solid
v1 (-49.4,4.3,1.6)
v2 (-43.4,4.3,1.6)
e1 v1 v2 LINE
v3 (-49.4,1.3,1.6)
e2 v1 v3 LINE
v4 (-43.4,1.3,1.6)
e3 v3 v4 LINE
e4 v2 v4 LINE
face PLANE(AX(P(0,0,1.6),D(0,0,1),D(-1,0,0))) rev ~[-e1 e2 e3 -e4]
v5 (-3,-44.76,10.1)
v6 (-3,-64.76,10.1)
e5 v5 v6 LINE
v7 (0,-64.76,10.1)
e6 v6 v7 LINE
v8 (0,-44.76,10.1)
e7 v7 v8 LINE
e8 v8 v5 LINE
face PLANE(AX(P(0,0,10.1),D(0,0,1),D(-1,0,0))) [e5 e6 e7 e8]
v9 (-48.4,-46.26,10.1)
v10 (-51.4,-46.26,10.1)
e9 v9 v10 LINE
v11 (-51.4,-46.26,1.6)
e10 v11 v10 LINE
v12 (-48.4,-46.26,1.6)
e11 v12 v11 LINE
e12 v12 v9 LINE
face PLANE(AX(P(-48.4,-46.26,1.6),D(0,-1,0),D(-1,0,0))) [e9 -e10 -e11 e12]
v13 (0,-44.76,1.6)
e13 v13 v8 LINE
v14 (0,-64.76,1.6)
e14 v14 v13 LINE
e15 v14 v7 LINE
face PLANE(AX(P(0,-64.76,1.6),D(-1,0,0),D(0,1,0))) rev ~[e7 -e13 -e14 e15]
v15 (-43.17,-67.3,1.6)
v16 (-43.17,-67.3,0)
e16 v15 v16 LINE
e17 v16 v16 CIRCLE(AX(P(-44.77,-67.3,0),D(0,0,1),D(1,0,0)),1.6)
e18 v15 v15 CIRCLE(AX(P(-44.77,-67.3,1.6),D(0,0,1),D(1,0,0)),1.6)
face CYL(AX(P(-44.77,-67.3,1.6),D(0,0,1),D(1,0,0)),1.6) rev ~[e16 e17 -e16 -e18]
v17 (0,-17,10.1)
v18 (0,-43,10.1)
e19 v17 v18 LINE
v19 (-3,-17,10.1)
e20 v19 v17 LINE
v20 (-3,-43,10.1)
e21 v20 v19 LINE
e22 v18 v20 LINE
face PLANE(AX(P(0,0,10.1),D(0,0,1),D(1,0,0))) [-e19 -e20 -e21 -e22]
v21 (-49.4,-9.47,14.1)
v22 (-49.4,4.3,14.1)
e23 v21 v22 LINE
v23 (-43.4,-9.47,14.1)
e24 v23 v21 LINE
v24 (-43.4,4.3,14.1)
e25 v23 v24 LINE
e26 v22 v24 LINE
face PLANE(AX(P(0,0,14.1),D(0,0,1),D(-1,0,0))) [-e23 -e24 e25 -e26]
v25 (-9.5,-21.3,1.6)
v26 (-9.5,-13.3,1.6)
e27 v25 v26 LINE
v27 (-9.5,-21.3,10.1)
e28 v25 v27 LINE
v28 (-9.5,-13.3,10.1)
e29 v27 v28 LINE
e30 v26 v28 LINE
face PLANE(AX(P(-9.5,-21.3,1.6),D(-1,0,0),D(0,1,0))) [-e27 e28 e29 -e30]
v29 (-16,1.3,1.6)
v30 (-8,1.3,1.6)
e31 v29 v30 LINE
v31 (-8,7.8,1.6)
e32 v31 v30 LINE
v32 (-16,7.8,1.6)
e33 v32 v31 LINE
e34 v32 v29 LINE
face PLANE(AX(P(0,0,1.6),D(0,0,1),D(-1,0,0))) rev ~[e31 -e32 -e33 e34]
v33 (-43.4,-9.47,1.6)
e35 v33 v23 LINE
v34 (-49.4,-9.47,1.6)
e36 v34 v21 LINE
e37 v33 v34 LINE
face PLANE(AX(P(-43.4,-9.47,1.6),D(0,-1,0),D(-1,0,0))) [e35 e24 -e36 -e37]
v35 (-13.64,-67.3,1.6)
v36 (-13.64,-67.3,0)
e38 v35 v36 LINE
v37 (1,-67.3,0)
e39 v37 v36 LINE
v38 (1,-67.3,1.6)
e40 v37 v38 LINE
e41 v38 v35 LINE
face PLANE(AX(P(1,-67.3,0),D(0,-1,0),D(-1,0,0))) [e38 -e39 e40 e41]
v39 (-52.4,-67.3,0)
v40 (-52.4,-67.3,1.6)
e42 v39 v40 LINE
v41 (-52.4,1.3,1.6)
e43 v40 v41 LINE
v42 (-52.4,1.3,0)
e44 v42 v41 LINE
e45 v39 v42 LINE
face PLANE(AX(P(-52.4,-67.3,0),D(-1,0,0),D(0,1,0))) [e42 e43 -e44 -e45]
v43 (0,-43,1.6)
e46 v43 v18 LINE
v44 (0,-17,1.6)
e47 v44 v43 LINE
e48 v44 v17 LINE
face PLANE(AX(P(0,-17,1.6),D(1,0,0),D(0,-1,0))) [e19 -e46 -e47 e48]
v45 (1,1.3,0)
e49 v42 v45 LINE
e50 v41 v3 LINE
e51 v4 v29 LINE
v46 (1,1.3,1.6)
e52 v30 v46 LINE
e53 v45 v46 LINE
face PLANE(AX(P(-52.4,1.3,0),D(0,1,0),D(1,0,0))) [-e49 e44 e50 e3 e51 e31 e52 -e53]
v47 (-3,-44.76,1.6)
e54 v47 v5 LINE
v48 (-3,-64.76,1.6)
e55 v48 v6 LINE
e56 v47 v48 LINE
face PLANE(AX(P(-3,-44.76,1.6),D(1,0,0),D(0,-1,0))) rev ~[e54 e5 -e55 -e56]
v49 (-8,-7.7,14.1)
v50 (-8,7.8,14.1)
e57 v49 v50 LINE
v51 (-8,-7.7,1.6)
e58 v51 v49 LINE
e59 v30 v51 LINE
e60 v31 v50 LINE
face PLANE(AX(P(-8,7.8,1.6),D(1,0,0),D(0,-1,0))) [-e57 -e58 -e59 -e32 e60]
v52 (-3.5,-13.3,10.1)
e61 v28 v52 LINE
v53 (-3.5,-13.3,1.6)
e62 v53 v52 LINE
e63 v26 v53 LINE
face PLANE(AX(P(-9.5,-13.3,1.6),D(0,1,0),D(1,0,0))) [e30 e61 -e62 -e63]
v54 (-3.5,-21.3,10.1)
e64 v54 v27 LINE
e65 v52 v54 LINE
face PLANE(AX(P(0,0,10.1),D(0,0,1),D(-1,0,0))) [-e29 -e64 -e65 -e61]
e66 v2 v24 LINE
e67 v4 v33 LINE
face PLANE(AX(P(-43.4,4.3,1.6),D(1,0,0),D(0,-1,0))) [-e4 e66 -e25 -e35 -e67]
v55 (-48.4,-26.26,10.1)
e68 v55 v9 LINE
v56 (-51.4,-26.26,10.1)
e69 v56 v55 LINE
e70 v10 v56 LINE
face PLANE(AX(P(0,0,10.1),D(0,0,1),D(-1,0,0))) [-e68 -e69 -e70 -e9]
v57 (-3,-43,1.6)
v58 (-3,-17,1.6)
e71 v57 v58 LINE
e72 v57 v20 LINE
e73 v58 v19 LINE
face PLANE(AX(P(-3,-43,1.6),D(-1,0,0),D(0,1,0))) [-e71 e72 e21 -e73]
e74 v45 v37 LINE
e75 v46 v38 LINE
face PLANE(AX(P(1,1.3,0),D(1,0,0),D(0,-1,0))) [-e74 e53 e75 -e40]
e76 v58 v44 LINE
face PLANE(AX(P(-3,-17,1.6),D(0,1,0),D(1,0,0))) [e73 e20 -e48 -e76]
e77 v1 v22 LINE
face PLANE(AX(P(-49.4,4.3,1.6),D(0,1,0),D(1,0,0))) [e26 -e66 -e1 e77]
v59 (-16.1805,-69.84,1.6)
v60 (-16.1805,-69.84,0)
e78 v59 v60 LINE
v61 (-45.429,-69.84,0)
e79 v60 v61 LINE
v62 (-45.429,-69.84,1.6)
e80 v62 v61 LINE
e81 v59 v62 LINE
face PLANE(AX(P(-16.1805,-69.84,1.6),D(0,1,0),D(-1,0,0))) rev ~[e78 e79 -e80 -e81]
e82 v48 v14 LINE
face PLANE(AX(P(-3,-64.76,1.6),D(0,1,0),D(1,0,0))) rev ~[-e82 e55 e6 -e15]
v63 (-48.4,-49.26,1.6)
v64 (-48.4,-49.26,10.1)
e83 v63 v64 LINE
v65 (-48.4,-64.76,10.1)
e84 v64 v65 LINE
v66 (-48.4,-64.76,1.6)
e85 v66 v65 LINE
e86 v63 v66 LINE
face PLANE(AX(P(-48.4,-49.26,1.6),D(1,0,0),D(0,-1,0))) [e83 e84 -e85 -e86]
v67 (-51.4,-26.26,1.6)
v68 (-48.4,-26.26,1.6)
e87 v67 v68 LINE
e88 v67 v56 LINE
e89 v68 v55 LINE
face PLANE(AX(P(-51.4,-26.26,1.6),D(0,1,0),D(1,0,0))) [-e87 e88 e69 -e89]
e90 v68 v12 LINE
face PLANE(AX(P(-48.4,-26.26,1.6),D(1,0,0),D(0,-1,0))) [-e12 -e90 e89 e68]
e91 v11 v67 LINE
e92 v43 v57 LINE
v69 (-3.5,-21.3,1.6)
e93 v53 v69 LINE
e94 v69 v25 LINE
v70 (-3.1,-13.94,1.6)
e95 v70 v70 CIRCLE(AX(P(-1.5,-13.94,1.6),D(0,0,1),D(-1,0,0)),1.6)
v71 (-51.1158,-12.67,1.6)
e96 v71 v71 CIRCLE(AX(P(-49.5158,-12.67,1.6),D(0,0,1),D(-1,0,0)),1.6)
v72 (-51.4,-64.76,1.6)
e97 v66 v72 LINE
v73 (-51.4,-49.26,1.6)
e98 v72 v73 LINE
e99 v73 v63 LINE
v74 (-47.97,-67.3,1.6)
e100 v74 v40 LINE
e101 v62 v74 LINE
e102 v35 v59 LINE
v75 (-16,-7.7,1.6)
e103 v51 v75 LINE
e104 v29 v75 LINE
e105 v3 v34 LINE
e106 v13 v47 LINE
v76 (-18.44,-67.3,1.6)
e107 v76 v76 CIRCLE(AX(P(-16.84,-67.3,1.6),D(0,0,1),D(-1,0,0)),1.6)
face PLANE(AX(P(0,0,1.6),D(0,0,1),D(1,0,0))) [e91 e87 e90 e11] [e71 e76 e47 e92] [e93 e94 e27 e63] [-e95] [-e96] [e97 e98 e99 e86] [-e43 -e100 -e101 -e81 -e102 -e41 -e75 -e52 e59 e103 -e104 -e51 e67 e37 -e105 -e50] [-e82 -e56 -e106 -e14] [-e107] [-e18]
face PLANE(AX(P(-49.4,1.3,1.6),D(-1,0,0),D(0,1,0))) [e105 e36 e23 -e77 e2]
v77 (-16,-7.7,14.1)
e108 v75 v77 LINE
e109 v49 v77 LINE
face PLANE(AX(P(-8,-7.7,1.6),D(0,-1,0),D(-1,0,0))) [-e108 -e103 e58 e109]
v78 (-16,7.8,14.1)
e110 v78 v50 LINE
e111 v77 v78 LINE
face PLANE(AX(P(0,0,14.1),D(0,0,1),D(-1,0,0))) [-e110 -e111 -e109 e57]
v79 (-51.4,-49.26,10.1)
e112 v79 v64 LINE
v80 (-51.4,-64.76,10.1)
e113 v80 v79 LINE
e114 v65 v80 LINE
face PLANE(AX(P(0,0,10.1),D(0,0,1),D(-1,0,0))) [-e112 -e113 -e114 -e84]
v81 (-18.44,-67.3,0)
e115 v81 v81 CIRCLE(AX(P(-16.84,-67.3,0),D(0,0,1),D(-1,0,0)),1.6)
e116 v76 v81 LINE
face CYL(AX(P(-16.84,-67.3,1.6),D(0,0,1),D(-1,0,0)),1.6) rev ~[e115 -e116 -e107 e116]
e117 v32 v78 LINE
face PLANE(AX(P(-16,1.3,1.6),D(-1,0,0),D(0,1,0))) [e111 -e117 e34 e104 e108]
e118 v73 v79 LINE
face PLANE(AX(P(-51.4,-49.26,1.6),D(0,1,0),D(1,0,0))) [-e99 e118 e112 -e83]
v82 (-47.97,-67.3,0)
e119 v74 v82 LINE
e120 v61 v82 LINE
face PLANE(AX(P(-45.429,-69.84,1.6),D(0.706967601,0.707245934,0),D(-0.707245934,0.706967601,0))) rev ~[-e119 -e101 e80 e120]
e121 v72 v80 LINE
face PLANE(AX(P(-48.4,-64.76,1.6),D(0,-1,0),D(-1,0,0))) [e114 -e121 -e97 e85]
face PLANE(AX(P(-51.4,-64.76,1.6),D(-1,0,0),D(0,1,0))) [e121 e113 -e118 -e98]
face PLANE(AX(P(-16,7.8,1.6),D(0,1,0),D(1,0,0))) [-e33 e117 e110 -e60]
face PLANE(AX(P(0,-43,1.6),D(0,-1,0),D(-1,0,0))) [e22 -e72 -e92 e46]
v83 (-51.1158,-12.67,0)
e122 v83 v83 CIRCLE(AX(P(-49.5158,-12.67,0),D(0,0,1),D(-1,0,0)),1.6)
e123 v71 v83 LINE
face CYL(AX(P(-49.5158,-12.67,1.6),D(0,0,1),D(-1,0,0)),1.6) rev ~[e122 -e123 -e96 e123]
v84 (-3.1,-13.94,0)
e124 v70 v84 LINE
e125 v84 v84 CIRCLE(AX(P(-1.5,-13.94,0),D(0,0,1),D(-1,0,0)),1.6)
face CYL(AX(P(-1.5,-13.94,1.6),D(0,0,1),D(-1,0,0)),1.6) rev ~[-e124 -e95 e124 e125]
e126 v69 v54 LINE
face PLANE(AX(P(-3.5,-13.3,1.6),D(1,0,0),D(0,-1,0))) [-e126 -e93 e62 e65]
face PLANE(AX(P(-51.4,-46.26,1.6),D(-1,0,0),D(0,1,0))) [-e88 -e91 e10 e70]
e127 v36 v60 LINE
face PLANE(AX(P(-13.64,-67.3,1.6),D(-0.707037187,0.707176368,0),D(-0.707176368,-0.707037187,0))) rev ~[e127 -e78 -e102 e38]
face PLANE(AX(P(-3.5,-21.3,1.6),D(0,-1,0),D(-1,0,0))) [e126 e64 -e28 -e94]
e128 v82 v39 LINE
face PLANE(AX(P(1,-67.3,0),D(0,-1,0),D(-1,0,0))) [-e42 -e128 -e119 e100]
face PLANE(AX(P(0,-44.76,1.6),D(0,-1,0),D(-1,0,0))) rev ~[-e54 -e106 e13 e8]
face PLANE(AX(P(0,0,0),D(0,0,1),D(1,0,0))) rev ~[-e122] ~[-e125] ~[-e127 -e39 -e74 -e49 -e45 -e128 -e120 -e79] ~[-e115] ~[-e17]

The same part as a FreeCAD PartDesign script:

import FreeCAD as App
import Part
import Sketcher


def add_polygon(sketch, points):
    """Adds a closed chain of lines whose ends are joined by coincident constraints."""
    first, n = sketch.GeometryCount, len(points)
    for a, b in zip(points, points[1:] + points[:1]):
        sketch.addGeometry(Part.LineSegment(App.Vector(*a, 0), App.Vector(*b, 0)), False)
    for i in range(n):
        sketch.addConstraint(Sketcher.Constraint("Coincident", first + i, 2, first + (i + 1) % n, 1))

doc = App.newDocument("Part")
body = doc.addObject("PartDesign::Body", "Body")

# Sketch on XY plane
sketch1 = doc.addObject("Sketcher::SketchObject", "Sketch")
body.addObject(sketch1)
sketch1.AttachmentSupport = (doc.XY_Plane, [""])
sketch1.MapMode = "FlatFace"
add_polygon(sketch1, [(1, 1.3), (-52.4, 1.3), (-52.4, -67.3), (1, -67.3)])  # lines 0-3
sketch1.addConstraint([
    Sketcher.Constraint("Horizontal", 0),
    Sketcher.Constraint("Vertical", 1),
    Sketcher.Constraint("Horizontal", 2),
    Sketcher.Constraint("Vertical", 3),
    Sketcher.Constraint("DistanceX", 0, 2, 0, 1, 53.4),
    Sketcher.Constraint("DistanceY", 1, 2, 1, 1, 68.6),
    Sketcher.Constraint("DistanceX", -1, 1, 2, 2, 1.0),
    Sketcher.Constraint("DistanceY", -1, 1, 0, 2, 1.3),
])
pad1 = doc.addObject("PartDesign::Pad", "Pad")
body.addObject(pad1)
pad1.Profile = sketch1
pad1.Length = 1.6

# Sketch on XY plane
sketch2 = doc.addObject("Sketcher::SketchObject", "Sketch001")
body.addObject(sketch2)
sketch2.AttachmentSupport = (doc.XY_Plane, [""])
sketch2.MapMode = "FlatFace"
sketch2.AttachmentOffset = App.Placement(App.Vector(0, 0, 1.6), App.Rotation())
add_polygon(sketch2, [(-3, -44.76), (-3, -64.76), (0, -64.76), (0, -44.76)])  # lines 0-3
sketch2.addConstraint([
    Sketcher.Constraint("Vertical", 0),
    Sketcher.Constraint("Horizontal", 1),
    Sketcher.Constraint("Vertical", 2),
    Sketcher.Constraint("Horizontal", 3),
    Sketcher.Constraint("PointOnObject", 1, 2, -2),
    Sketcher.Constraint("DistanceX", 1, 1, 1, 2, 3.0),
    Sketcher.Constraint("DistanceY", 0, 2, 0, 1, 20.0),
    Sketcher.Constraint("DistanceY", 0, 2, -1, 1, 64.76),
])
pad2 = doc.addObject("PartDesign::Pad", "Pad001")
body.addObject(pad2)
pad2.Profile = sketch2
pad2.Length = 8.5

# Sketch on XY plane
sketch3 = doc.addObject("Sketcher::SketchObject", "Sketch002")
body.addObject(sketch3)
sketch3.AttachmentSupport = (doc.XY_Plane, [""])
sketch3.MapMode = "FlatFace"
sketch3.AttachmentOffset = App.Placement(App.Vector(0, 0, 1.6), App.Rotation())
add_polygon(sketch3, [(-48.4, -49.26), (-51.4, -49.26), (-51.4, -64.76), (-48.4, -64.76)])  # lines 0-3
sketch3.addConstraint([
    Sketcher.Constraint("Horizontal", 0),
    Sketcher.Constraint("Vertical", 1),
    Sketcher.Constraint("Horizontal", 2),
    Sketcher.Constraint("Vertical", 3),
    Sketcher.Constraint("DistanceX", 0, 2, 0, 1, 3.0),
    Sketcher.Constraint("DistanceY", 1, 2, 1, 1, 15.5),
    Sketcher.Constraint("DistanceX", 0, 2, -1, 1, 51.4),
    Sketcher.Constraint("DistanceY", 0, 2, -1, 1, 49.26),
])
pad3 = doc.addObject("PartDesign::Pad", "Pad002")
body.addObject(pad3)
pad3.Profile = sketch3
pad3.Length = 8.5

# Sketch on XY plane
sketch4 = doc.addObject("Sketcher::SketchObject", "Sketch003")
body.addObject(sketch4)
sketch4.AttachmentSupport = (doc.XY_Plane, [""])
sketch4.MapMode = "FlatFace"
sketch4.AttachmentOffset = App.Placement(App.Vector(0, 0, 1.6), App.Rotation())
add_polygon(sketch4, [(-48.4, -26.26), (-51.4, -26.26), (-51.4, -46.26), (-48.4, -46.26)])  # lines 0-3
sketch4.addConstraint([
    Sketcher.Constraint("Horizontal", 0),
    Sketcher.Constraint("Vertical", 1),
    Sketcher.Constraint("Horizontal", 2),
    Sketcher.Constraint("Vertical", 3),
    Sketcher.Constraint("DistanceX", 0, 2, 0, 1, 3.0),
    Sketcher.Constraint("DistanceY", 1, 2, 1, 1, 20.0),
    Sketcher.Constraint("DistanceX", 0, 2, -1, 1, 51.4),
    Sketcher.Constraint("DistanceY", 0, 2, -1, 1, 26.26),
])
pad4 = doc.addObject("PartDesign::Pad", "Pad003")
body.addObject(pad4)
pad4.Profile = sketch4
pad4.Length = 8.5

# Sketch on XY plane
sketch5 = doc.addObject("Sketcher::SketchObject", "Sketch004")
body.addObject(sketch5)
sketch5.AttachmentSupport = (doc.XY_Plane, [""])
sketch5.MapMode = "FlatFace"
sketch5.AttachmentOffset = App.Placement(App.Vector(0, 0, 1.6), App.Rotation())
add_polygon(sketch5, [(-3.5, -13.3), (-9.5, -13.3), (-9.5, -21.3), (-3.5, -21.3)])  # lines 0-3
sketch5.addConstraint([
    Sketcher.Constraint("Horizontal", 0),
    Sketcher.Constraint("Vertical", 1),
    Sketcher.Constraint("Horizontal", 2),
    Sketcher.Constraint("Vertical", 3),
    Sketcher.Constraint("DistanceX", 0, 2, 0, 1, 6.0),
    Sketcher.Constraint("DistanceY", 1, 2, 1, 1, 8.0),
    Sketcher.Constraint("DistanceX", 0, 2, -1, 1, 9.5),
    Sketcher.Constraint("DistanceY", 0, 2, -1, 1, 13.3),
])
pad5 = doc.addObject("PartDesign::Pad", "Pad004")
body.addObject(pad5)
pad5.Profile = sketch5
pad5.Length = 8.5

# Sketch on XY plane
sketch6 = doc.addObject("Sketcher::SketchObject", "Sketch005")
body.addObject(sketch6)
sketch6.AttachmentSupport = (doc.XY_Plane, [""])
sketch6.MapMode = "FlatFace"
sketch6.AttachmentOffset = App.Placement(App.Vector(0, 0, 1.6), App.Rotation())
add_polygon(sketch6, [(-3, -43), (0, -43), (0, -17), (-3, -17)])  # lines 0-3
sketch6.addConstraint([
    Sketcher.Constraint("Horizontal", 0),
    Sketcher.Constraint("Vertical", 1),
    Sketcher.Constraint("Horizontal", 2),
    Sketcher.Constraint("Vertical", 3),
    Sketcher.Constraint("PointOnObject", 0, 2, -2),
    Sketcher.Constraint("DistanceX", 0, 1, 0, 2, 3.0),
    Sketcher.Constraint("DistanceY", 1, 1, 1, 2, 26.0),
    Sketcher.Constraint("DistanceY", 0, 2, -1, 1, 43.0),
])
pad6 = doc.addObject("PartDesign::Pad", "Pad005")
body.addObject(pad6)
pad6.Profile = sketch6
pad6.Length = 8.5

# Sketch on XY plane
sketch7 = doc.addObject("Sketcher::SketchObject", "Sketch006")
body.addObject(sketch7)
sketch7.AttachmentSupport = (doc.XY_Plane, [""])
sketch7.MapMode = "FlatFace"
sketch7.AttachmentOffset = App.Placement(App.Vector(0, 0, 1.6), App.Rotation())
sketch7.addGeometry(Part.Circle(App.Vector(-1.5, -13.94, 0), App.Vector(0, 0, 1), 1.6), False)
sketch7.addConstraint([
    Sketcher.Constraint("Diameter", 0, 3.2),
    Sketcher.Constraint("DistanceX", 0, 3, -1, 1, 1.5),
    Sketcher.Constraint("DistanceY", 0, 3, -1, 1, 13.94),
])
pocket1 = doc.addObject("PartDesign::Pocket", "Pocket")
body.addObject(pocket1)
pocket1.Profile = sketch7
pocket1.Length = 50

# Sketch on XY plane
sketch8 = doc.addObject("Sketcher::SketchObject", "Sketch007")
body.addObject(sketch8)
sketch8.AttachmentSupport = (doc.XY_Plane, [""])
sketch8.MapMode = "FlatFace"
sketch8.AttachmentOffset = App.Placement(App.Vector(0, 0, 1.6), App.Rotation())
add_polygon(sketch8, [(-49.4, 4.3), (-49.4, -9.47), (-43.4, -9.47), (-43.4, 4.3)])  # lines 0-3
sketch8.addConstraint([
    Sketcher.Constraint("Vertical", 0),
    Sketcher.Constraint("Horizontal", 1),
    Sketcher.Constraint("Vertical", 2),
    Sketcher.Constraint("Horizontal", 3),
    Sketcher.Constraint("DistanceX", 1, 1, 1, 2, 6.0),
    Sketcher.Constraint("DistanceY", 0, 2, 0, 1, 13.77),
    Sketcher.Constraint("DistanceX", 0, 2, -1, 1, 49.4),
    Sketcher.Constraint("DistanceY", -1, 1, 2, 2, 4.3),
])
pad7 = doc.addObject("PartDesign::Pad", "Pad006")
body.addObject(pad7)
pad7.Profile = sketch8
pad7.Length = 12.5

# Sketch on XY plane
sketch9 = doc.addObject("Sketcher::SketchObject", "Sketch008")
body.addObject(sketch9)
sketch9.AttachmentSupport = (doc.XY_Plane, [""])
sketch9.MapMode = "FlatFace"
sketch9.AttachmentOffset = App.Placement(App.Vector(0, 0, 1.6), App.Rotation())
sketch9.addGeometry(Part.Circle(App.Vector(-49.5158, -12.67, 0), App.Vector(0, 0, 1), 1.6), False)
sketch9.addConstraint([
    Sketcher.Constraint("Diameter", 0, 3.2),
    Sketcher.Constraint("DistanceY", 0, 3, -1, 1, 12.67),
    Sketcher.Constraint("DistanceX", 0, 3, -1, 1, 49.5158),
])
pocket2 = doc.addObject("PartDesign::Pocket", "Pocket001")
body.addObject(pocket2)
pocket2.Profile = sketch9
pocket2.Length = 1.6

# Sketch on XY plane
sketch10 = doc.addObject("Sketcher::SketchObject", "Sketch009")
body.addObject(sketch10)
sketch10.AttachmentSupport = (doc.XY_Plane, [""])
sketch10.MapMode = "FlatFace"
sketch10.AttachmentOffset = App.Placement(App.Vector(0, 0, 1.6), App.Rotation())
add_polygon(sketch10, [(-13.64, -67.3), (-47.97, -67.3), (-45.429, -69.84), (-16.1805, -69.84)])  # lines 0-3
sketch10.addConstraint([
    Sketcher.Constraint("Horizontal", 0),
    Sketcher.Constraint("Horizontal", 2),
    Sketcher.Constraint("Perpendicular", 1, 3),
    Sketcher.Constraint("DistanceY", 1, 2, 0, 2, 2.54),
    Sketcher.Constraint("DistanceX", 0, 2, 0, 1, 34.33),
    Sketcher.Constraint("DistanceY", 0, 2, -1, 1, 67.3),
    Sketcher.Constraint("DistanceX", 2, 2, 3, 2, 2.5405),
    Sketcher.Constraint("DistanceX", 0, 2, -1, 1, 47.97),
])
pad8 = doc.addObject("PartDesign::Pad", "Pad007")
body.addObject(pad8)
pad8.Profile = sketch10
pad8.Length = 1.6
pad8.Reversed = True

# Sketch on XY plane
sketch11 = doc.addObject("Sketcher::SketchObject", "Sketch010")
body.addObject(sketch11)
sketch11.AttachmentSupport = (doc.XY_Plane, [""])
sketch11.MapMode = "FlatFace"
sketch11.AttachmentOffset = App.Placement(App.Vector(0, 0, 1.6), App.Rotation())
sketch11.addGeometry(Part.Circle(App.Vector(-16.84, -67.3, 0), App.Vector(0, 0, 1), 1.6), False)
sketch11.addConstraint([
    Sketcher.Constraint("Diameter", 0, 3.2),
    Sketcher.Constraint("DistanceY", 0, 3, -1, 1, 67.3),
    Sketcher.Constraint("DistanceX", 0, 3, -1, 1, 16.84),
])
pocket3 = doc.addObject("PartDesign::Pocket", "Pocket002")
body.addObject(pocket3)
pocket3.Profile = sketch11
pocket3.Length = 1.6

# Sketch on XY plane
sketch12 = doc.addObject("Sketcher::SketchObject", "Sketch011")
body.addObject(sketch12)
sketch12.AttachmentSupport = (doc.XY_Plane, [""])
sketch12.MapMode = "FlatFace"
sketch12.AttachmentOffset = App.Placement(App.Vector(0, 0, 1.6), App.Rotation())
sketch12.addGeometry(Part.Circle(App.Vector(-44.77, -67.3, 0), App.Vector(0, 0, 1), 1.6), False)
sketch12.addConstraint([
    Sketcher.Constraint("Diameter", 0, 3.2),
    Sketcher.Constraint("DistanceY", 0, 3, -1, 1, 67.3),
    Sketcher.Constraint("DistanceX", 0, 3, -1, 1, 44.77),
])
pocket4 = doc.addObject("PartDesign::Pocket", "Pocket003")
body.addObject(pocket4)
pocket4.Profile = sketch12
pocket4.Length = 1.6

# Sketch on XY plane
sketch13 = doc.addObject("Sketcher::SketchObject", "Sketch012")
body.addObject(sketch13)
sketch13.AttachmentSupport = (doc.XY_Plane, [""])
sketch13.MapMode = "FlatFace"
sketch13.AttachmentOffset = App.Placement(App.Vector(0, 0, 1.6), App.Rotation())
add_polygon(sketch13, [(-16, 7.8), (-16, -7.7), (-8, -7.7), (-8, 7.8)])  # lines 0-3
sketch13.addConstraint([
    Sketcher.Constraint("Vertical", 0),
    Sketcher.Constraint("Horizontal", 1),
    Sketcher.Constraint("Vertical", 2),
    Sketcher.Constraint("Horizontal", 3),
    Sketcher.Constraint("DistanceY", 0, 2, 0, 1, 15.5),
    Sketcher.Constraint("DistanceX", 1, 1, 1, 2, 8.0),
    Sketcher.Constraint("DistanceX", 0, 2, -1, 1, 16.0),
    Sketcher.Constraint("DistanceY", 0, 2, -1, 1, 7.7),
])
pad9 = doc.addObject("PartDesign::Pad", "Pad008")
body.addObject(pad9)
pad9.Profile = sketch13
pad9.Length = 12.5

doc.recompute()
